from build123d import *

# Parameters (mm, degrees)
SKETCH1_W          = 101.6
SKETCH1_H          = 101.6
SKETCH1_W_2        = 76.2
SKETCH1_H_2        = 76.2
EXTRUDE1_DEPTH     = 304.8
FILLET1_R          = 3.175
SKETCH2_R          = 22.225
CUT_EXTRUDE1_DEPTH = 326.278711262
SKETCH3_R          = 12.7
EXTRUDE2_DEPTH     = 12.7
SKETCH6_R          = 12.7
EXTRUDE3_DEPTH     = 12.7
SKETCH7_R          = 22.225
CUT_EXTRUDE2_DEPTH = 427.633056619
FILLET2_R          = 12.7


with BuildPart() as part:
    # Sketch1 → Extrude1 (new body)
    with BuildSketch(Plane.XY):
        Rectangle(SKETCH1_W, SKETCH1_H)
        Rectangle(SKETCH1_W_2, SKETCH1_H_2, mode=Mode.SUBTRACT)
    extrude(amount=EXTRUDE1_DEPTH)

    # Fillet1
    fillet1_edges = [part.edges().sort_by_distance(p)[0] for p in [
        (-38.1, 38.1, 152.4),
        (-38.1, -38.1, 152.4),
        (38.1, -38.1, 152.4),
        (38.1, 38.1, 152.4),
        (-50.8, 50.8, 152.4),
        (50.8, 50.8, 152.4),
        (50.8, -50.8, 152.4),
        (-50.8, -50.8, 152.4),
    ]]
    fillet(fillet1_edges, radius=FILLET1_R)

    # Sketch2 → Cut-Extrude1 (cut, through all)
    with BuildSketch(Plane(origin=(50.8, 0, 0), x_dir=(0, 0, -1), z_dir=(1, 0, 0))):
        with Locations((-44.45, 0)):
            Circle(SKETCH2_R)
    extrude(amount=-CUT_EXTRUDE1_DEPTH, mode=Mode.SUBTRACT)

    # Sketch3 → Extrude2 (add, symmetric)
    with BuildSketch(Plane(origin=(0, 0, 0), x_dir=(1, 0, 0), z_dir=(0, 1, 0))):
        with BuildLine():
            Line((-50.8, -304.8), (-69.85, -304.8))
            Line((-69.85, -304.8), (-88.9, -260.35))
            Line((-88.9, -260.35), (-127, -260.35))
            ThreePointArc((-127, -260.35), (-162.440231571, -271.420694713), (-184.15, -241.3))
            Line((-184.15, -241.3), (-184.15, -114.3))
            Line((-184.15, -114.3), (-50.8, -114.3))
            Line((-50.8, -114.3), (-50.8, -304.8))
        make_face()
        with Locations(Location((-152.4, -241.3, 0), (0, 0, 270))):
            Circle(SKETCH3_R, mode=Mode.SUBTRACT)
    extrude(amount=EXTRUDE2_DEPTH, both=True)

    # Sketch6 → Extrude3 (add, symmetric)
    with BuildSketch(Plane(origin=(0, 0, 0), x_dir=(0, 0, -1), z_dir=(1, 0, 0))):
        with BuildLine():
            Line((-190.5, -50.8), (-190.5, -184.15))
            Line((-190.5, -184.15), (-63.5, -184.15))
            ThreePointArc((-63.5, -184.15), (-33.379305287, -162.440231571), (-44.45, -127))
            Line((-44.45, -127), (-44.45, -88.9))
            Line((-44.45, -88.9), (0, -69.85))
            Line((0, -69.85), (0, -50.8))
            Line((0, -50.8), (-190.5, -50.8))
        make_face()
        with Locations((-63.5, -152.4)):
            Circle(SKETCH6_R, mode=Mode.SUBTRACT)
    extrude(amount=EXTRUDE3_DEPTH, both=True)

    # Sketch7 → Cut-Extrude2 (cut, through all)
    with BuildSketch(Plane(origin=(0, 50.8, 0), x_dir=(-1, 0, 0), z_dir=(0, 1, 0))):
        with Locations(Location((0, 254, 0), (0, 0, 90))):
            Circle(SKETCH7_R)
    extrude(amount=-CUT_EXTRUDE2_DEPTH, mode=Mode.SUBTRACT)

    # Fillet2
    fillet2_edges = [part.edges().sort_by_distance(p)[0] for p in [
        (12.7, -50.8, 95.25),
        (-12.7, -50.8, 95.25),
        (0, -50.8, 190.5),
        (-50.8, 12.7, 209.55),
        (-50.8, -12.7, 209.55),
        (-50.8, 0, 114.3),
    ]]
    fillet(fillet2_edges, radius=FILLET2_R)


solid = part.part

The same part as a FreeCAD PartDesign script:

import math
import FreeCAD as App
import Part
import Sketcher

V = App.Vector
Q = App.Units.Quantity


def edges_at(feature, points):
    """Names of the edges that pass closest to the given points."""
    edges = feature.Shape.Edges
    near = lambda p: min(range(len(edges)), key=lambda i: edges[i].distToShape(Part.Vertex(*p))[0])
    return sorted({f"Edge{near(p) + 1}" for p in points})


def add_polygon(sketch, points):
    """Adds a closed chain of lines whose ends are joined by coincident constraints."""
    first, n = sketch.GeometryCount, len(points)
    for a, b in zip(points, points[1:] + points[:1]):
        sketch.addGeometry(Part.LineSegment(App.Vector(*a, 0), App.Vector(*b, 0)), False)
    for i in range(n):
        sketch.addConstraint(Sketcher.Constraint("Coincident", first + i, 2, first + (i + 1) % n, 1))

doc = App.newDocument("Part")
body = doc.addObject("PartDesign::Body", "Body")

# Sketch on XY plane
sketch1 = body.newObject("Sketcher::SketchObject", "Sketch")
sketch1.AttachmentSupport = (doc.getObject("XY_Plane"), [""])
sketch1.MapMode = "FlatFace"
add_polygon(sketch1, [(-50.8, 50.8), (-50.8, -50.8), (50.8, -50.8), (50.8, 50.8)])  # lines 0-3
add_polygon(sketch1, [(38.1, -38.1), (-38.1, -38.1), (-38.1, 38.1), (38.1, 38.1)])  # lines 4-7
sketch1.addConstraint([
    Sketcher.Constraint("Vertical", 0),
    Sketcher.Constraint("Horizontal", 1),
    Sketcher.Constraint("Vertical", 2),
    Sketcher.Constraint("Horizontal", 3),
    Sketcher.Constraint("Horizontal", 4),
    Sketcher.Constraint("Vertical", 5),
    Sketcher.Constraint("Horizontal", 6),
    Sketcher.Constraint("Vertical", 7),
    Sketcher.Constraint("Symmetric", 0, 2, 2, 2, -1, 1),
    Sketcher.Constraint("Symmetric", 4, 2, 6, 2, -1, 1),
    Sketcher.Constraint("Equal", 3, 0),
    Sketcher.Constraint("Equal", 6, 5),
    Sketcher.Constraint("DistanceX", 1, 1, 1, 2, Q("4 in")),
    Sketcher.Constraint("DistanceX", 4, 2, 4, 1, Q("3 in")),
])
pad1 = body.newObject("PartDesign::Pad", "Pad")
pad1.Profile = sketch1
pad1.Length = Q("12 in")
doc.recompute()

fillet = body.newObject("PartDesign::Fillet", "Fillet")
fillet.Base = (pad1, edges_at(pad1, [
    (-38.1, 38.1, 152.4),
    (-38.1, -38.1, 152.4),
    (38.1, -38.1, 152.4),
    (38.1, 38.1, 152.4),
    (-50.8, 50.8, 152.4),
    (50.8, 50.8, 152.4),
    (50.8, -50.8, 152.4),
    (-50.8, -50.8, 152.4),
]))
fillet.Radius = Q("0.125 in")

# Sketch on YZ plane
sketch2 = body.newObject("Sketcher::SketchObject", "Sketch001")
sketch2.AttachmentSupport = (doc.getObject("YZ_Plane"), [""])
sketch2.MapMode = "FlatFace"
sketch2.AttachmentOffset = App.Placement(V(0, 0, 2 * 25.4), App.Rotation())
sketch2.addGeometry(Part.Circle(V(0, 44.45, 0), V(0, 0, 1), 22.225), False)
sketch2.addConstraint([
    Sketcher.Constraint("PointOnObject", 0, 3, -2),
    Sketcher.Constraint("Diameter", 0, Q("1.75 in")),
    Sketcher.Constraint("DistanceY", -1, 1, 0, 3, Q("1.75 in")),
])
pocket1 = body.newObject("PartDesign::Pocket", "Pocket")
pocket1.Profile = sketch2
pocket1.Type = "ThroughAll"

# Sketch on XZ plane
sketch3 = body.newObject("Sketcher::SketchObject", "Sketch002")
sketch3.AttachmentSupport = (doc.getObject("XZ_Plane"), [""])
sketch3.MapMode = "FlatFace"
sketch3.addGeometry([
    Part.LineSegment(V(-69.85, 304.8, 0), V(-50.8, 304.8, 0)),  # 0
    Part.LineSegment(V(-50.8, 304.8, 0), V(-50.8, 114.3, 0)),  # 1
    Part.LineSegment(V(-50.8, 114.3, 0), V(-184.15, 114.3, 0)),  # 2
    Part.LineSegment(V(-184.15, 114.3, 0), V(-184.15, 241.3, 0)),  # 3
    Part.ArcOfCircle(Part.Circle(V(-152.4, 241.3, 0), V(0, 0, 1), 31.75), math.radians(36.869898), math.radians(180)),  # 4
    Part.LineSegment(V(-127, 260.35, 0), V(-88.9, 260.35, 0)),  # 5
    Part.LineSegment(V(-88.9, 260.35, 0), V(-69.85, 304.8, 0)),  # 6
    Part.Circle(V(-152.4, 241.3, 0), V(0, 0, 1), 12.7),  # 7
], False)
sketch3.addConstraint([
    Sketcher.Constraint("Coincident", 0, 2, 1, 1),
    Sketcher.Constraint("Coincident", 1, 2, 2, 1),
    Sketcher.Constraint("Coincident", 2, 2, 3, 1),
    Sketcher.Constraint("Tangent", 3, 2, 4, 2),
    Sketcher.Constraint("Coincident", 4, 1, 5, 1),
    Sketcher.Constraint("Coincident", 5, 2, 6, 1),
    Sketcher.Constraint("Coincident", 6, 2, 0, 1),
    Sketcher.Constraint("Horizontal", 0),
    Sketcher.Constraint("Vertical", 1),
    Sketcher.Constraint("Horizontal", 2),
    Sketcher.Constraint("Vertical", 3),
    Sketcher.Constraint("Horizontal", 5),
    Sketcher.Constraint("Coincident", 7, 3, 4, 3),
    Sketcher.Constraint("Diameter", 7, Q("1 in")),
    Sketcher.Constraint("DistanceY", 3, 1, 3, 2, Q("5 in")),
    Sketcher.Constraint("Radius", 4, Q("1.25 in")),
    Sketcher.Constraint("DistanceX", 5, 1, 5, 2, Q("1.5 in")),
    Sketcher.Constraint("DistanceY", 1, 2, 1, 1, Q("7.5 in")),
    Sketcher.Constraint("DistanceX", 4, 3, -1, 1, Q("6 in")),
    Sketcher.Constraint("DistanceX", 0, 2, -1, 1, Q("2 in")),
    Sketcher.Constraint("DistanceY", -1, 1, 0, 2, Q("12 in")),
    Sketcher.Constraint("DistanceX", 4, 1, -1, 1, Q("5 in")),
    Sketcher.Constraint("DistanceX", 0, 1, 0, 2, Q("0.75 in")),
])
pad2 = body.newObject("PartDesign::Pad", "Pad001")
pad2.Profile = sketch3
pad2.Length = Q("1 in")
pad2.Midplane = True

# Sketch on YZ plane
sketch4 = body.newObject("Sketcher::SketchObject", "Sketch003")
sketch4.AttachmentSupport = (doc.getObject("YZ_Plane"), [""])
sketch4.MapMode = "FlatFace"
sketch4.addGeometry([
    Part.LineSegment(V(-50.8, 190.5, 0), V(-184.15, 190.5, 0)),  # 0
    Part.LineSegment(V(-184.15, 190.5, 0), V(-184.15, 63.5, 0)),  # 1
    Part.ArcOfCircle(Part.Circle(V(-152.4, 63.5, 0), V(0, 0, 1), 31.75), math.radians(180), math.radians(323.130102)),  # 2
    Part.LineSegment(V(-127, 44.45, 0), V(-88.9, 44.45, 0)),  # 3
    Part.LineSegment(V(-88.9, 44.45, 0), V(-69.85, 0, 0)),  # 4
    Part.LineSegment(V(-69.85, 0, 0), V(-50.8, 0, 0)),  # 5
    Part.LineSegment(V(-50.8, 0, 0), V(-50.8, 190.5, 0)),  # 6
    Part.Circle(V(-152.4, 63.5, 0), V(0, 0, 1), 12.7),  # 7
], False)
sketch4.addConstraint([
    Sketcher.Constraint("Coincident", 0, 2, 1, 1),
    Sketcher.Constraint("Tangent", 1, 2, 2, 1),
    Sketcher.Constraint("Coincident", 2, 2, 3, 1),
    Sketcher.Constraint("Coincident", 3, 2, 4, 1),
    Sketcher.Constraint("Coincident", 4, 2, 5, 1),
    Sketcher.Constraint("Coincident", 5, 2, 6, 1),
    Sketcher.Constraint("Coincident", 6, 2, 0, 1),
    Sketcher.Constraint("Horizontal", 0),
    Sketcher.Constraint("Vertical", 1),
    Sketcher.Constraint("Horizontal", 3),
    Sketcher.Constraint("Horizontal", 5),
    Sketcher.Constraint("Vertical", 6),
    Sketcher.Constraint("Coincident", 7, 3, 2, 3),
    Sketcher.Constraint("PointOnObject", 4, 2, -1),
    Sketcher.Constraint("Diameter", 7, Q("1 in")),
    Sketcher.Constraint("DistanceY", 1, 2, 1, 1, Q("5 in")),
    Sketcher.Constraint("Radius", 2, Q("1.25 in")),
    Sketcher.Constraint("DistanceX", 3, 1, 3, 2, Q("1.5 in")),
    Sketcher.Constraint("DistanceY", 6, 1, 6, 2, Q("7.5 in")),
    Sketcher.Constraint("DistanceX", 2, 3, -1, 1, Q("6 in")),
    Sketcher.Constraint("DistanceX", 2, 2, -1, 1, Q("5 in")),
    Sketcher.Constraint("DistanceX", 5, 2, -1, 1, Q("2 in")),
    Sketcher.Constraint("DistanceX", 5, 1, 5, 2, Q("0.75 in")),
])
pad3 = body.newObject("PartDesign::Pad", "Pad002")
pad3.Profile = sketch4
pad3.Length = Q("1 in")
pad3.Midplane = True

# Sketch on XZ plane
sketch5 = body.newObject("Sketcher::SketchObject", "Sketch004")
sketch5.AttachmentSupport = (doc.getObject("XZ_Plane"), [""])
sketch5.MapMode = "FlatFace"
sketch5.AttachmentOffset = App.Placement(V(0, 0, -2 * 25.4), App.Rotation())
sketch5.addGeometry(Part.Circle(V(0, 254, 0), V(0, 0, 1), 22.225), False)
sketch5.addConstraint([
    Sketcher.Constraint("PointOnObject", 0, 3, -2),
    Sketcher.Constraint("Diameter", 0, Q("1.75 in")),
    Sketcher.Constraint("DistanceY", -1, 1, 0, 3, Q("10 in")),
])
pocket2 = body.newObject("PartDesign::Pocket", "Pocket001")
pocket2.Profile = sketch5
pocket2.Type = "ThroughAll"
pocket2.Reversed = True
doc.recompute()

fillet2 = body.newObject("PartDesign::Fillet", "Fillet001")
fillet2.Base = (pocket2, edges_at(pocket2, [
    (12.7, -50.8, 95.25),
    (-12.7, -50.8, 95.25),
    (0, -50.8, 190.5),
    (-50.8, 12.7, 209.55),
    (-50.8, -12.7, 209.55),
    (-50.8, 0, 114.3),
]))
fillet2.Radius = Q("0.5 in")

doc.recompute()
